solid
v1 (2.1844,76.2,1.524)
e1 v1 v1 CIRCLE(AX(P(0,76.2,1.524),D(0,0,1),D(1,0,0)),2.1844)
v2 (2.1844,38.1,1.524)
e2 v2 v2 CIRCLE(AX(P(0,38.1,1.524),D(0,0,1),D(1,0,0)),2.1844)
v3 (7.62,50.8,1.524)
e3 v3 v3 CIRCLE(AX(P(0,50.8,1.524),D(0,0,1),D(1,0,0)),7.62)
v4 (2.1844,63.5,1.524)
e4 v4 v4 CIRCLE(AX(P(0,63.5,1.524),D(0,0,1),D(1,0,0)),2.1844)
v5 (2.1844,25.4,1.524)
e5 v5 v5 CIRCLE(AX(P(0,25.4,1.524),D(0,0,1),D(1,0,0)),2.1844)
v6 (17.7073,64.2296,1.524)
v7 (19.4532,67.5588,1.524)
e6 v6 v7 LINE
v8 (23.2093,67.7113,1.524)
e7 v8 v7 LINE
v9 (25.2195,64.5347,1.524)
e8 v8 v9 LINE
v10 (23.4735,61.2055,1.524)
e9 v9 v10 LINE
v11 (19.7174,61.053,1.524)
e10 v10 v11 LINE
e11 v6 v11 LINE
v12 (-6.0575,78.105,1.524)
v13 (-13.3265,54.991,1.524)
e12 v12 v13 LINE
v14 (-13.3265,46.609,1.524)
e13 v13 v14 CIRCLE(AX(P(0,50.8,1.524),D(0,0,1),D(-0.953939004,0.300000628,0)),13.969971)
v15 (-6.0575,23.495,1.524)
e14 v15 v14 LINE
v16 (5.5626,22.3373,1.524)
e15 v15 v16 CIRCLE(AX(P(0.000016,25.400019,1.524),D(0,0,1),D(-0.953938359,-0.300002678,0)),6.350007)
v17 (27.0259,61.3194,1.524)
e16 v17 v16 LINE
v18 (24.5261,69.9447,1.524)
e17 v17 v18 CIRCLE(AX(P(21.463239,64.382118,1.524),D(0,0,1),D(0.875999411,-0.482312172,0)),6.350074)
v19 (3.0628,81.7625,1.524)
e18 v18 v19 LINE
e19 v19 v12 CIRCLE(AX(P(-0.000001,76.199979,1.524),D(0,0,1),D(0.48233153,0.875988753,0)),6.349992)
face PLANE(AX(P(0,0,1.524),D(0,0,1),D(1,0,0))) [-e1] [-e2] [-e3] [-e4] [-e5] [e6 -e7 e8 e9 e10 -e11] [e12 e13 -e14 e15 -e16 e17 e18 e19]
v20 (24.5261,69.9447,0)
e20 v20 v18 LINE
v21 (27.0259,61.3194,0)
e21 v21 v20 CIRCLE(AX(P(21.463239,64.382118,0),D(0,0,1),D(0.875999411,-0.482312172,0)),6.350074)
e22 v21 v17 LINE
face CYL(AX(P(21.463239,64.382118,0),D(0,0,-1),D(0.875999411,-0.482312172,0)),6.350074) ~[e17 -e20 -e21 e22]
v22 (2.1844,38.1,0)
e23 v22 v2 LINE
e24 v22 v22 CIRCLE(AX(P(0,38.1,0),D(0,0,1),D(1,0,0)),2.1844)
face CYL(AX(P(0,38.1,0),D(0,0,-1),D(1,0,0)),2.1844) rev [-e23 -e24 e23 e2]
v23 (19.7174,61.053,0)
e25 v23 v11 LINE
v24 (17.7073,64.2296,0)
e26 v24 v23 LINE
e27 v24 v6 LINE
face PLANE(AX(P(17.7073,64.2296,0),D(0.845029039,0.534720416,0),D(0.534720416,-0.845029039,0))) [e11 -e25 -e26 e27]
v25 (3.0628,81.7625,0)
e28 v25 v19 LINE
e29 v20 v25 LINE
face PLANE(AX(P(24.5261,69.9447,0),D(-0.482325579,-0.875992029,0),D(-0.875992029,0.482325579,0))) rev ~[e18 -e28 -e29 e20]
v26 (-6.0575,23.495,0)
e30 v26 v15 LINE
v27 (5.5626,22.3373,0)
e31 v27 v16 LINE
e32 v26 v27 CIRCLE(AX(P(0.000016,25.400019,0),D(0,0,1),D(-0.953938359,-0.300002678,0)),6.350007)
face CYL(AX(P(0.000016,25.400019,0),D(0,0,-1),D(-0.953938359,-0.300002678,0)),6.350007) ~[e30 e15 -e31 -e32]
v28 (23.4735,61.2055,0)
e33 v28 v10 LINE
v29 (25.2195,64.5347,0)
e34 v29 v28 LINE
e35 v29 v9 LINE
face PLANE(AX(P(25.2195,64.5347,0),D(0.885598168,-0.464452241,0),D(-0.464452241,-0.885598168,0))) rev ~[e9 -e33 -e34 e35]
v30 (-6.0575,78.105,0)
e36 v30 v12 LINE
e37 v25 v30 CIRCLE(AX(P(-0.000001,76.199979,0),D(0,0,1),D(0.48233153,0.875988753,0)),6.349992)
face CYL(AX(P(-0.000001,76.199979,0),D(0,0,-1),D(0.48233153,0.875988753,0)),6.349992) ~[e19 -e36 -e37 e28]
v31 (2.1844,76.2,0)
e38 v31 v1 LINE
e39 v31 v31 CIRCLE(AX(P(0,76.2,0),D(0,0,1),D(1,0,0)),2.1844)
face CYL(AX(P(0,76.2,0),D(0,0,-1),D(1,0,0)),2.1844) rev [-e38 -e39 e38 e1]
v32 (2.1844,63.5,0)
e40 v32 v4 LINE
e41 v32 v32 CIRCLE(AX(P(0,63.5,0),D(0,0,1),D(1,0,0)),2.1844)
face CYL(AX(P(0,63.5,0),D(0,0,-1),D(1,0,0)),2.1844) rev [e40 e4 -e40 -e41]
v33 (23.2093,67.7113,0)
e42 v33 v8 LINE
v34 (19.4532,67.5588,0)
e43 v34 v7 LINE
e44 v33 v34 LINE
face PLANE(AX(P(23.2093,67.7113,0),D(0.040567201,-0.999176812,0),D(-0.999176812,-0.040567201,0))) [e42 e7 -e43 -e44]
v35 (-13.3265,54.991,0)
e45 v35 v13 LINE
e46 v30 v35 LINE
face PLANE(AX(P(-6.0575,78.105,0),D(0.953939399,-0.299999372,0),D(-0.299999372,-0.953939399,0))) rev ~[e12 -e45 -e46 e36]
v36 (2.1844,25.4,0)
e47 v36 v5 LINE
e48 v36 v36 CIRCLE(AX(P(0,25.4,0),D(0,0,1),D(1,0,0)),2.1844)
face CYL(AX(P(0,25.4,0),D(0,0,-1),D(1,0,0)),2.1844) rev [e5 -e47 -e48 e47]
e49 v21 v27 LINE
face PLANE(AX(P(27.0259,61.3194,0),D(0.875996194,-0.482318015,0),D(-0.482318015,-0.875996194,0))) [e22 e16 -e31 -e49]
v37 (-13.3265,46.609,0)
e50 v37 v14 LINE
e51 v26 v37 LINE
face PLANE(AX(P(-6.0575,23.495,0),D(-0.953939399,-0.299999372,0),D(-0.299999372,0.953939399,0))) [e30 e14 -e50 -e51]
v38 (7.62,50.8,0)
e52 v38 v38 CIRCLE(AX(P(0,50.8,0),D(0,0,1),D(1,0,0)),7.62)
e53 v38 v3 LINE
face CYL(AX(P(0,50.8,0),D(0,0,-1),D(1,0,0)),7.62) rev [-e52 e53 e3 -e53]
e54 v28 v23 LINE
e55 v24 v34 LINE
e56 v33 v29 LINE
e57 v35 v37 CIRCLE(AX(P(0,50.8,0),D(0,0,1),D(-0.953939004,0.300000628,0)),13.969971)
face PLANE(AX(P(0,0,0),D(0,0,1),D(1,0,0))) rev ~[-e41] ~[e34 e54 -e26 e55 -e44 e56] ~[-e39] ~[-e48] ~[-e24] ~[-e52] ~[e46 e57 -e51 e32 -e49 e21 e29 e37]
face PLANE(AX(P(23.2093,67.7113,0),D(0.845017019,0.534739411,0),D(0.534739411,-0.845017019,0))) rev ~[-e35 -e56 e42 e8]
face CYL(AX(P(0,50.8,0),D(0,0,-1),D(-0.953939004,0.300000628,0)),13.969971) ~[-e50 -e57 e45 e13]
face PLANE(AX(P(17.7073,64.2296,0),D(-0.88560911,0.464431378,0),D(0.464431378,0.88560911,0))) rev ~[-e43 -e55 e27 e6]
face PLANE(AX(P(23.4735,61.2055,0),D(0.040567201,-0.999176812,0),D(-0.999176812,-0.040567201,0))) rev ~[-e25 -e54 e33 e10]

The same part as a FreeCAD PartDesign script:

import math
import FreeCAD as App
import Part
import Sketcher

V = App.Vector
Q = App.Units.Quantity


def add_polygon(sketch, points):
    """Adds a closed chain of lines whose ends are joined by coincident constraints."""
    first, n = sketch.GeometryCount, len(points)
    for a, b in zip(points, points[1:] + points[:1]):
        sketch.addGeometry(Part.LineSegment(App.Vector(*a, 0), App.Vector(*b, 0)), False)
    for i in range(n):
        sketch.addConstraint(Sketcher.Constraint("Coincident", first + i, 2, first + (i + 1) % n, 1))

doc = App.newDocument("Part")
body = doc.addObject("PartDesign::Body", "Body")

# Sketch on XY plane
sketch1 = body.newObject("Sketcher::SketchObject", "Sketch")
sketch1.AttachmentSupport = (doc.getObject("XY_Plane"), [""])
sketch1.MapMode = "FlatFace"
sketch1.addGeometry(Part.LineSegment(V(5.5626, 22.3373, 0), V(27.0259, 61.3194, 0)), False)  # 0
sketch1.addGeometry(Part.ArcOfCircle(Part.Circle(V(21.4634, 64.3821, 0), V(0, 0, 1), 6.349924), math.radians(-28.837082), math.radians(61.163353)), False)  # 1
sketch1.addGeometry(Part.LineSegment(V(24.5261, 69.9447, 0), V(3.0628, 81.7625, 0)), False)  # 2
sketch1.addGeometry(Part.ArcOfCircle(Part.Circle(V(0, 76.2, 0), V(0, 0, 1), 6.349972), math.radians(61.162128), math.radians(162.542359)), False)  # 3
sketch1.addGeometry(Part.LineSegment(V(-6.0575, 78.105, 0), V(-13.3265, 54.991, 0)), False)  # 4
sketch1.addGeometry(Part.ArcOfCircle(Part.Circle(V(0, 50.8, 0), V(0, 0, 1), 13.969971), math.radians(162.542359), math.radians(197.457641)), False)  # 5
sketch1.addGeometry(Part.LineSegment(V(-13.3265, 46.609, 0), V(-6.0575, 23.495, 0)), False)  # 6
sketch1.addGeometry(Part.ArcOfCircle(Part.Circle(V(0, 25.4, 0), V(0, 0, 1), 6.349987), math.radians(-162.542359), math.radians(-28.836647)), False)  # 7
sketch1.addGeometry(Part.Circle(V(0, 25.4, 0), V(0, 0, 1), 2.1844), False)  # 8
sketch1.addGeometry(Part.Circle(V(0, 38.1, 0), V(0, 0, 1), 2.1844), False)  # 9
sketch1.addGeometry(Part.Circle(V(0, 50.8, 0), V(0, 0, 1), 7.62), False)  # 10
sketch1.addGeometry(Part.Circle(V(0, 63.5, 0), V(0, 0, 1), 2.1844), False)  # 11
sketch1.addGeometry(Part.Circle(V(0, 76.2, 0), V(0, 0, 1), 2.1844), False)  # 12
add_polygon(sketch1, [(25.2195, 64.5347), (23.4735, 61.2055), (19.7174, 61.053), (17.7073, 64.2296), (19.4532, 67.5588), (23.2093, 67.7113)])  # lines 13-18
sketch1.addConstraint([
    Sketcher.Constraint("Coincident", 0, 2, 1, 1),
    Sketcher.Constraint("Coincident", 1, 2, 2, 1),
    Sketcher.Constraint("Coincident", 2, 2, 3, 1),
    Sketcher.Constraint("Coincident", 3, 2, 4, 1),
    Sketcher.Constraint("Coincident", 4, 2, 5, 1),
    Sketcher.Constraint("Coincident", 5, 2, 6, 1),
    Sketcher.Constraint("Coincident", 6, 2, 7, 1),
    Sketcher.Constraint("Coincident", 7, 2, 0, 1),
    Sketcher.Constraint("Coincident", 8, 3, 7, 3),
    Sketcher.Constraint("Coincident", 10, 3, 5, 3),
    Sketcher.Constraint("Coincident", 12, 3, 3, 3),
    Sketcher.Constraint("PointOnObject", 3, 3, -2),
    Sketcher.Constraint("PointOnObject", 5, 3, -2),
    Sketcher.Constraint("PointOnObject", 7, 3, -2),
    Sketcher.Constraint("PointOnObject", 9, 3, -2),
    Sketcher.Constraint("PointOnObject", 11, 3, -2),
    Sketcher.Constraint("Diameter", 10, Q("0.6 in")),
    Sketcher.Constraint("Radius", 1, Q("0.25 in")),
    Sketcher.Constraint("Radius", 3, Q("0.25 in")),
    Sketcher.Constraint("Radius", 5, Q("0.55 in")),
    Sketcher.Constraint("Radius", 7, Q("0.25 in")),
    Sketcher.Constraint("Diameter", 8, Q("0.172 in")),
    Sketcher.Constraint("Diameter", 9, Q("0.172 in")),
    Sketcher.Constraint("Diameter", 11, Q("0.172 in")),
    Sketcher.Constraint("Diameter", 12, Q("0.172 in")),
    Sketcher.Constraint("DistanceY", -1, 1, 3, 3, Q("3 in")),
    Sketcher.Constraint("DistanceY", -1, 1, 5, 3, Q("2 in")),
    Sketcher.Constraint("DistanceY", -1, 1, 7, 3, Q("1 in")),
    Sketcher.Constraint("DistanceY", 9, 3, 11, 3, Q("1 in")),
    Sketcher.Constraint("DistanceY", -1, 1, 9, 3, Q("1.5 in")),
    Sketcher.Constraint("DistanceY", 4, 2, 3, 2, Q("0.91 in")),
    Sketcher.Constraint("DistanceY", 5, 2, 4, 2, Q("0.33 in")),
    Sketcher.Constraint("DistanceY", 6, 2, 5, 2, Q("0.91 in")),
    Sketcher.Constraint("Distance", 13, Q("0.148 in")),
    Sketcher.Constraint("Distance", 14, Q("0.148 in")),
    Sketcher.Constraint("Distance", 15, Q("0.148 in")),
    Sketcher.Constraint("Distance", 16, Q("0.148 in")),
    Sketcher.Constraint("Distance", 17, Q("0.148 in")),
    Sketcher.Constraint("Distance", 18, Q("0.148 in")),
    Sketcher.Constraint("DistanceX", -1, 1, 0, 2, Q("1.064 in")),
    Sketcher.Constraint("DistanceY", -1, 1, 2, 2, Q("3.219 in")),
    Sketcher.Constraint("DistanceY", -1, 1, 3, 2, Q("3.075 in")),
    Sketcher.Constraint("DistanceX", -1, 1, 7, 2, Q("0.219 in")),
    Sketcher.Constraint("DistanceX", 1, 3, 0, 2, Q("0.219 in")),
    Sketcher.Constraint("DistanceY", 1, 3, 1, 2, Q("0.219 in")),
    Sketcher.Constraint("DistanceY", 14, 2, 13, 2, Q("0.006 in")),
    Sketcher.Constraint("DistanceY", 15, 2, 1, 3, Q("0.006 in")),
    Sketcher.Constraint("DistanceY", 16, 2, 17, 2, Q("0.006 in")),
    Sketcher.Constraint("DistanceY", 1, 3, 18, 2, Q("0.006 in")),
    Sketcher.Constraint("DistanceY", -1, 1, 16, 2, Q("2.6598 in")),
    Sketcher.Constraint("DistanceX", -1, 1, 18, 2, Q("0.9929 in")),
    Sketcher.Constraint("DistanceY", 14, 2, 0, 2, Q("0.0105 in")),
])
pad1 = body.newObject("PartDesign::Pad", "Pad")
pad1.Profile = sketch1
pad1.Length = Q("0.06 in")

doc.recompute()
